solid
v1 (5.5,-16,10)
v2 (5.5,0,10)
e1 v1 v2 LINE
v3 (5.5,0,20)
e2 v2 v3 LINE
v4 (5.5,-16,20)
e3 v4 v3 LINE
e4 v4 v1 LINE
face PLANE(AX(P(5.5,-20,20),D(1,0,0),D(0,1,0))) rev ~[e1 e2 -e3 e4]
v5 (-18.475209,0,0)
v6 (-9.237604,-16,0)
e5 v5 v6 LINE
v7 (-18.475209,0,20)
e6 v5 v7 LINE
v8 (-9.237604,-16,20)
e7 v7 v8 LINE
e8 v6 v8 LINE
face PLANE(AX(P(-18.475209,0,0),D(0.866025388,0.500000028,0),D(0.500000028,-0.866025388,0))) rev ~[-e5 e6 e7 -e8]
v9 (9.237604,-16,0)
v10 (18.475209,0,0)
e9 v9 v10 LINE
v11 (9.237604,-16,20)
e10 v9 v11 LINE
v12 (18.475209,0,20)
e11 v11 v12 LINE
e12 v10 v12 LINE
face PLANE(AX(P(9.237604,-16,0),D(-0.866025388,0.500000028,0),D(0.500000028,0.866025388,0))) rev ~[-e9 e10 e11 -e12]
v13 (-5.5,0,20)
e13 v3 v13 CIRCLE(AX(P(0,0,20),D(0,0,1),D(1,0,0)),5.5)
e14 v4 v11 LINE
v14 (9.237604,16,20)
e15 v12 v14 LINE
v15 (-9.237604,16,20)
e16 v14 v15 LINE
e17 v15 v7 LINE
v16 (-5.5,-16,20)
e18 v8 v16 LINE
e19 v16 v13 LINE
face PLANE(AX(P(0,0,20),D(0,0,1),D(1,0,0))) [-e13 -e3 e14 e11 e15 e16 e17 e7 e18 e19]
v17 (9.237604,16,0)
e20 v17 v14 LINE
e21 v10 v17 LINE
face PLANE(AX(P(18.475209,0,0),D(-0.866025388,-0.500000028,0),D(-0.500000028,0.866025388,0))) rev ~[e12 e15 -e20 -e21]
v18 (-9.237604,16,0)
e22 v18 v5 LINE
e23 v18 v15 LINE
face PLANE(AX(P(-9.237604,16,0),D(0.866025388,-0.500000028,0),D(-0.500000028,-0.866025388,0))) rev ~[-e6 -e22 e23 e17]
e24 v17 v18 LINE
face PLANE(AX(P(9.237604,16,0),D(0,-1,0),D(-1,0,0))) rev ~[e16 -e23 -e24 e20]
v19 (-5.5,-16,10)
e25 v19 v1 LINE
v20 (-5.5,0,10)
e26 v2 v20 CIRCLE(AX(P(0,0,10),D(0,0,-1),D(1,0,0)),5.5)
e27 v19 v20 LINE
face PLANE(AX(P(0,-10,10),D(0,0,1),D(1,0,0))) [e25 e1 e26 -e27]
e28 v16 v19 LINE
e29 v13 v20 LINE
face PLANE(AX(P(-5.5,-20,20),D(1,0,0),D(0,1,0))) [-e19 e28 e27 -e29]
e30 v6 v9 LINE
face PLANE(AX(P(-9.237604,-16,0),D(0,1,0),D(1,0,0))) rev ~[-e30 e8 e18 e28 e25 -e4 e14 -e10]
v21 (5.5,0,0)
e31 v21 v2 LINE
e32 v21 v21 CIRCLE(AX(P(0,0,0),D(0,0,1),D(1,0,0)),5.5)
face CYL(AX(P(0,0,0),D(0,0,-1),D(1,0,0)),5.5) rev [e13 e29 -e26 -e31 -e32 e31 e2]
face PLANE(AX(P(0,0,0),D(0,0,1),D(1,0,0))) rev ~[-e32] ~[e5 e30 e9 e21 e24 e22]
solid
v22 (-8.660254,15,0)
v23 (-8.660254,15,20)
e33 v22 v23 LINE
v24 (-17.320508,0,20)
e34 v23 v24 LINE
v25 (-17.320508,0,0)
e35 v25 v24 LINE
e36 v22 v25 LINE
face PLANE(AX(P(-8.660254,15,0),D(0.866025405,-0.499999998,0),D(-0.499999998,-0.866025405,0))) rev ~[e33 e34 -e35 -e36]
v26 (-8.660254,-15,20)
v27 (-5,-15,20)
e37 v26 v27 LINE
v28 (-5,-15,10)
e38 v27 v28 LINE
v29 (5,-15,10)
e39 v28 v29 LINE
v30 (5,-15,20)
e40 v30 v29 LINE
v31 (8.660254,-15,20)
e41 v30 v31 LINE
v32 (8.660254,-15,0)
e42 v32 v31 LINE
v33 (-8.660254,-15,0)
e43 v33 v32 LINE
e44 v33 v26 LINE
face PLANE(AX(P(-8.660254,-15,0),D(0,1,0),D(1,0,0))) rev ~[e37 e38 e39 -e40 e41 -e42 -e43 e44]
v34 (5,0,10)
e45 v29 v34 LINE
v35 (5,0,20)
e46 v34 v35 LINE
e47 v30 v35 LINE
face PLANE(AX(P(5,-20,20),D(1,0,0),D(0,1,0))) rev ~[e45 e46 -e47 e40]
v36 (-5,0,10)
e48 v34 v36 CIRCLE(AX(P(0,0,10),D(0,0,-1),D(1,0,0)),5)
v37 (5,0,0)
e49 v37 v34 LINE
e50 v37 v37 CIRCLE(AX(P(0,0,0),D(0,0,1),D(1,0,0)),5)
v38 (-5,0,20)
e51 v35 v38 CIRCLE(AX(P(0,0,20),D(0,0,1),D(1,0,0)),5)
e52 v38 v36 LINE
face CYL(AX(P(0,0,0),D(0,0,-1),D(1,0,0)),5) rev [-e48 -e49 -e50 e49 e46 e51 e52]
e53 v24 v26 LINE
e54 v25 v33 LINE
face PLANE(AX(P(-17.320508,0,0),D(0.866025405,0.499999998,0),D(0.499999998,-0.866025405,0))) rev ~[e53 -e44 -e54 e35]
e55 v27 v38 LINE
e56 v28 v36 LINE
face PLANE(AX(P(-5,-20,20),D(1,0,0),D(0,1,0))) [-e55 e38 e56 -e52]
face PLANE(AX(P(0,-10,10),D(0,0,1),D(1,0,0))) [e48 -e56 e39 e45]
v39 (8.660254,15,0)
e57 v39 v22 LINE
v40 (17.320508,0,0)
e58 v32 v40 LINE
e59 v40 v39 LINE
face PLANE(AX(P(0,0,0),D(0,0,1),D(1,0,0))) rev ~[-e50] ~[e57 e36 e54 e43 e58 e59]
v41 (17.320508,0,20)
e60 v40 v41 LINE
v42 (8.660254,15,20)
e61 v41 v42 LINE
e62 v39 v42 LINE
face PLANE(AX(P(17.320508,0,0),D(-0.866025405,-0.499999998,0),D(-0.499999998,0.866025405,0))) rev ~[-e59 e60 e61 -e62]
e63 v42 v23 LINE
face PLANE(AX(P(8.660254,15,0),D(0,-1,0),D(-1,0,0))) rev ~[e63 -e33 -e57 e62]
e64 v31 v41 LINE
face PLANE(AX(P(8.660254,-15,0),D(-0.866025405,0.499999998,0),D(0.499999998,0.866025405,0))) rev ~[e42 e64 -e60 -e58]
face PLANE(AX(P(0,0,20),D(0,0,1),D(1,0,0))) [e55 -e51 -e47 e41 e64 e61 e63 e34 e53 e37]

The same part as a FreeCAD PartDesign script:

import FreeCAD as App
import Part
import Sketcher

V = App.Vector
Q = App.Units.Quantity


def add_polygon(sketch, points):
    """Adds a closed chain of lines whose ends are joined by coincident constraints."""
    first, n = sketch.GeometryCount, len(points)
    for a, b in zip(points, points[1:] + points[:1]):
        sketch.addGeometry(Part.LineSegment(App.Vector(*a, 0), App.Vector(*b, 0)), False)
    for i in range(n):
        sketch.addConstraint(Sketcher.Constraint("Coincident", first + i, 2, first + (i + 1) % n, 1))

doc = App.newDocument("Part")
body = doc.addObject("PartDesign::Body", "Body")

sketch1 = body.newObject("Sketcher::SketchObject", "Sketch")
sketch1.AttachmentSupport = (doc.getObject("XY_Plane"), [""])
sketch1.MapMode = "FlatFace"
add_polygon(sketch1, [(17.320508, 0), (8.660254, 15), (-8.660254, 15), (-17.320508, 0), (-8.660254, -15), (8.660254, -15)])
sketch1.addGeometry(Part.Circle(V(0, 0, 0), V(0, 0, 1), 5), False)
sketch1.addConstraint(Sketcher.Constraint("Horizontal", 1))
sketch1.addConstraint(Sketcher.Constraint("Horizontal", 4))
sketch1.addConstraint(Sketcher.Constraint("Coincident", 6, 3, -1, 1))
sketch1.addConstraint(Sketcher.Constraint("Symmetric", 0, 2, 3, 2, -1, 1))
sketch1.addConstraint(Sketcher.Constraint("Symmetric", 2, 2, 5, 2, -1, 1))
sketch1.addConstraint(Sketcher.Constraint("PointOnObject", 2, 2, -1))
sketch1.addConstraint(Sketcher.Constraint("Parallel", 2, 5))
sketch1.addConstraint(Sketcher.Constraint("Vertical", 1, 2, 3, 2))
sketch1.addConstraint(Sketcher.Constraint("Diameter", 6, 10.0))
sketch1.addConstraint(Sketcher.Constraint("Angle", 0, Q("120 deg")))
sketch1.addConstraint(Sketcher.Constraint("DistanceY", -1, 1, 0, 2, 15.0))
sketch1.addConstraint(Sketcher.Constraint("DistanceX", 1, 2, 1, 1, 17.320508))
pad1 = body.newObject("PartDesign::Pad", "Pad")
pad1.Profile = sketch1
pad1.Length = 20

sketch2 = body.newObject("Sketcher::SketchObject", "Sketch001")
sketch2.AttachmentSupport = (doc.getObject("XY_Plane"), [""])
sketch2.MapMode = "FlatFace"
sketch2.AttachmentOffset = App.Placement(V(0, 0, 20), App.Rotation())
add_polygon(sketch2, [(-5, 0), (-5, -20), (5, -20), (5, 0)])
sketch2.addConstraint(Sketcher.Constraint("Vertical", 0))
sketch2.addConstraint(Sketcher.Constraint("Horizontal", 1))
sketch2.addConstraint(Sketcher.Constraint("Vertical", 2))
sketch2.addConstraint(Sketcher.Constraint("Horizontal", 3))
sketch2.addConstraint(Sketcher.Constraint("Symmetric", 2, 2, 3, 2, -1, 1))
sketch2.addConstraint(Sketcher.Constraint("DistanceX", 1, 1, 1, 2, 10.0))
sketch2.addConstraint(Sketcher.Constraint("DistanceY", 0, 2, 0, 1, 20.0))
pocket1 = body.newObject("PartDesign::Pocket", "Pocket")
pocket1.Profile = sketch2
pocket1.Length = 10
body2 = doc.addObject("PartDesign::Body", "Body001")

sketch3 = body2.newObject("Sketcher::SketchObject", "Sketch002")
sketch3.AttachmentSupport = (doc.getObject("XY_Plane001"), [""])
sketch3.MapMode = "FlatFace"
add_polygon(sketch3, [(18.475209, 0), (9.237604, 16), (-9.237604, 16), (-18.475209, 0), (-9.237604, -16), (9.237604, -16)])
sketch3.addGeometry(Part.Circle(V(0, 0, 0), V(0, 0, 1), 5.5), False)
sketch3.addConstraint(Sketcher.Constraint("Horizontal", 1))
sketch3.addConstraint(Sketcher.Constraint("Horizontal", 4))
sketch3.addConstraint(Sketcher.Constraint("Coincident", 6, 3, -1, 1))
sketch3.addConstraint(Sketcher.Constraint("Symmetric", 0, 2, 3, 2, -1, 1))
sketch3.addConstraint(Sketcher.Constraint("Symmetric", 2, 2, 5, 2, -1, 1))
sketch3.addConstraint(Sketcher.Constraint("PointOnObject", 2, 2, -1))
sketch3.addConstraint(Sketcher.Constraint("Parallel", 2, 5))
sketch3.addConstraint(Sketcher.Constraint("Vertical", 1, 2, 3, 2))
sketch3.addConstraint(Sketcher.Constraint("Diameter", 6, 11.0))
sketch3.addConstraint(Sketcher.Constraint("Angle", 0, Q("120.000002 deg")))
sketch3.addConstraint(Sketcher.Constraint("DistanceY", -1, 1, 0, 2, 16.0))
sketch3.addConstraint(Sketcher.Constraint("DistanceX", 1, 2, 1, 1, 18.475208))
pad2 = body2.newObject("PartDesign::Pad", "Pad001")
pad2.Profile = sketch3
pad2.Length = 20

sketch4 = body2.newObject("Sketcher::SketchObject", "Sketch003")
sketch4.AttachmentSupport = (doc.getObject("XY_Plane001"), [""])
sketch4.MapMode = "FlatFace"
sketch4.AttachmentOffset = App.Placement(V(0, 0, 20), App.Rotation())
add_polygon(sketch4, [(-5.5, 0), (-5.5, -20), (5.5, -20), (5.5, 0)])
sketch4.addConstraint(Sketcher.Constraint("Vertical", 0))
sketch4.addConstraint(Sketcher.Constraint("Horizontal", 1))
sketch4.addConstraint(Sketcher.Constraint("Vertical", 2))
sketch4.addConstraint(Sketcher.Constraint("Horizontal", 3))
sketch4.addConstraint(Sketcher.Constraint("Symmetric", 2, 2, 3, 2, -1, 1))
sketch4.addConstraint(Sketcher.Constraint("DistanceX", 1, 1, 1, 2, 11.0))
sketch4.addConstraint(Sketcher.Constraint("DistanceY", 0, 2, 0, 1, 20.0))
pocket2 = body2.newObject("PartDesign::Pocket", "Pocket001")
pocket2.Profile = sketch4
pocket2.Length = 10

doc.recompute()
